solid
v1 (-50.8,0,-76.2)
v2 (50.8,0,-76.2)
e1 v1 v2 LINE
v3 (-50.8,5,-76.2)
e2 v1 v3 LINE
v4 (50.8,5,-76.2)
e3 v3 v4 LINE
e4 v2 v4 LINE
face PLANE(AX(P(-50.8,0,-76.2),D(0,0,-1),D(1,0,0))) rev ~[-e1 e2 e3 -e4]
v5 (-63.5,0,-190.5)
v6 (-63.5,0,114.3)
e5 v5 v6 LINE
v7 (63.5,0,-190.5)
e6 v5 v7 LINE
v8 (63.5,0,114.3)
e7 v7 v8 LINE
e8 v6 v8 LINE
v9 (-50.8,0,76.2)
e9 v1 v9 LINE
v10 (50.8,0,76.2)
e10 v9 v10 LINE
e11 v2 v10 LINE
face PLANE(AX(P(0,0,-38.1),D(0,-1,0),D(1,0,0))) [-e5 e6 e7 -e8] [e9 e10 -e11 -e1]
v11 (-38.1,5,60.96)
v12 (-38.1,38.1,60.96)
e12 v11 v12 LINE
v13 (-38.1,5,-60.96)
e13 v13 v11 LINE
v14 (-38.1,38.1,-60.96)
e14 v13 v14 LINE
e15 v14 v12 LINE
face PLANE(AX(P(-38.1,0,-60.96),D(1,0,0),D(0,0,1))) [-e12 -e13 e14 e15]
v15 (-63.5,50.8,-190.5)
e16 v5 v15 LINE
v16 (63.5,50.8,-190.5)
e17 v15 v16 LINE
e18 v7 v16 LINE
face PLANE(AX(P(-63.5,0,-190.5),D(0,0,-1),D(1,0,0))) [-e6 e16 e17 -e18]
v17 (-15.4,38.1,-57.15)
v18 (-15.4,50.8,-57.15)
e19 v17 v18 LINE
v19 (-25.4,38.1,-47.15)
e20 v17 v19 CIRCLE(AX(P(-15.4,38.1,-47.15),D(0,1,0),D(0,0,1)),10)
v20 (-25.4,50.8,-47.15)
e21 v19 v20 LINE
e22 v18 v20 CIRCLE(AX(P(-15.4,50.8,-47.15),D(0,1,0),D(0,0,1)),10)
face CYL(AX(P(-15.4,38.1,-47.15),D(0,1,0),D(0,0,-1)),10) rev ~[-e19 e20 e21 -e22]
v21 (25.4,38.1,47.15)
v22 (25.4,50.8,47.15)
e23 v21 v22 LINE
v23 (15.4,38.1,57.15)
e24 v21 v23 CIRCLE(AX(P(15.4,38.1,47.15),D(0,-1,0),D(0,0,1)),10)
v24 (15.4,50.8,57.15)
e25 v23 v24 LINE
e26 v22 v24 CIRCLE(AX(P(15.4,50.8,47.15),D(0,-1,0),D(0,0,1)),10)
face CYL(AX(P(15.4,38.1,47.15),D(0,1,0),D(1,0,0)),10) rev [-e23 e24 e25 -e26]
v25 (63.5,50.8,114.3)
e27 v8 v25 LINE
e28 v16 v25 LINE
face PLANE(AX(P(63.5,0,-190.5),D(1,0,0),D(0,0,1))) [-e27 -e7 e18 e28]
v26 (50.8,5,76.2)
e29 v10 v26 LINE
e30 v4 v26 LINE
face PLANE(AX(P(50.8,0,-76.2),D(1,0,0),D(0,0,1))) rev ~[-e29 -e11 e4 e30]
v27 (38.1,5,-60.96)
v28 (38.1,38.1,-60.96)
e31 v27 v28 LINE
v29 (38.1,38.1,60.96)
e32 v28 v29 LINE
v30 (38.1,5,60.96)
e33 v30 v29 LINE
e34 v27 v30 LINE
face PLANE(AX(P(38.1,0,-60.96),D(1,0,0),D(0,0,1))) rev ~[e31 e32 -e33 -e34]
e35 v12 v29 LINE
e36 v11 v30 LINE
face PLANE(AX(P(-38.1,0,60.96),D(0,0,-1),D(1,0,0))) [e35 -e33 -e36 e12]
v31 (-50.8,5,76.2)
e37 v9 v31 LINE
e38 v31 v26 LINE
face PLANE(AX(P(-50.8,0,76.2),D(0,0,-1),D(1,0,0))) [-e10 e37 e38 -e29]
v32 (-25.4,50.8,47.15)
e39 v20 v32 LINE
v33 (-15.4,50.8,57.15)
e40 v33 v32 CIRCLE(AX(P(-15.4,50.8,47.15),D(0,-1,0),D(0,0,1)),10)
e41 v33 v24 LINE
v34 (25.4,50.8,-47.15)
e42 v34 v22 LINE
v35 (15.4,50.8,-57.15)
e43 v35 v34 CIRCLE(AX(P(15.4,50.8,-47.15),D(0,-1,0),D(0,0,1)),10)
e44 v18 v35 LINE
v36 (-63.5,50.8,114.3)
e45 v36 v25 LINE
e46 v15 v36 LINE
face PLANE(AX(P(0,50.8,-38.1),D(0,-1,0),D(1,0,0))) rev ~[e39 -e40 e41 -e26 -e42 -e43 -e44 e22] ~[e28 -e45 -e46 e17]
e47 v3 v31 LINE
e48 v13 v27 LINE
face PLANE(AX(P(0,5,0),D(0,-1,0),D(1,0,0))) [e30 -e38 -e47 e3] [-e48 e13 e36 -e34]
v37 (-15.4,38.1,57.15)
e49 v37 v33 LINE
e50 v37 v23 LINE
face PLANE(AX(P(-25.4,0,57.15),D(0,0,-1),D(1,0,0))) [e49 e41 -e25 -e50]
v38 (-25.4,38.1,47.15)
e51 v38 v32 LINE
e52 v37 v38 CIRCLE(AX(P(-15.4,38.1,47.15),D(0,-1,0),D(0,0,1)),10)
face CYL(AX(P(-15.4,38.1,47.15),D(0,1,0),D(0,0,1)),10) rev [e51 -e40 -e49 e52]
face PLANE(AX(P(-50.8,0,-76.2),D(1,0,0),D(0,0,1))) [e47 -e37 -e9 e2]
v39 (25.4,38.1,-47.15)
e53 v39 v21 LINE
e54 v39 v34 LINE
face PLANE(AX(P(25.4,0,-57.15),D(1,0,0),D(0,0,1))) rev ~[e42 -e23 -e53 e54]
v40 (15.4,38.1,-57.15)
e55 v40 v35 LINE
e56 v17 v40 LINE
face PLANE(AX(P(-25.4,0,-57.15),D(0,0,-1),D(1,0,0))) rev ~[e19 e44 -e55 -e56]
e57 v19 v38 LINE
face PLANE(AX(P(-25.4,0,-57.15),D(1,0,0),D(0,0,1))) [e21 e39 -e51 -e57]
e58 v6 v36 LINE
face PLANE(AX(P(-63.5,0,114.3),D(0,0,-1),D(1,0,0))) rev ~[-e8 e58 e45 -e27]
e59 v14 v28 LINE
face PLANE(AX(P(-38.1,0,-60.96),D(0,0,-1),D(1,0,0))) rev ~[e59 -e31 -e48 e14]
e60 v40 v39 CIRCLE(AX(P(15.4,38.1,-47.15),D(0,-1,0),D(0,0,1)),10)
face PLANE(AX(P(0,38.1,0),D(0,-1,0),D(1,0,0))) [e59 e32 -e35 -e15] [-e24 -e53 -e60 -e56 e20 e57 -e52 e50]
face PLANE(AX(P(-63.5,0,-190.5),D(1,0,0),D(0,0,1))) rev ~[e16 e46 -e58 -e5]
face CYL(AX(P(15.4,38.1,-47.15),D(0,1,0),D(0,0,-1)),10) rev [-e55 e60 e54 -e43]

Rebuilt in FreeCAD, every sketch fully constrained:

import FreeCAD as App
import Part
import Sketcher

V = App.Vector
Q = App.Units.Quantity


def edges_at(feature, points):
    """Names of the edges that pass closest to the given points."""
    edges = feature.Shape.Edges
    near = lambda p: min(range(len(edges)), key=lambda i: edges[i].distToShape(Part.Vertex(*p))[0])
    return sorted({f"Edge{near(p) + 1}" for p in points})

doc = App.newDocument("Part")
params = doc.addObject("Spreadsheet::Sheet", "Params")
for row, (alias, value) in enumerate([
    ("sketch1_width", "5 in"),
    ("sketch1_width2", "2 in"),
    ("sketch1_height", "12 in"),
    ("sketch1_height2", "4.5 in"),
    ("pad1_length", "2 in"),
    ("sketch2_width", "4 in"),
    ("sketch2_width2", "3 in"),
    ("sketch2_height", "6 in"),
    ("sketch2_height2", "4.8 in"),
    ("pocket1_length", "5 mm"),
    ("sketch3_width", "3 in"),
    ("sketch3_width2", "2 in"),
    ("sketch3_height", "4.8 in"),
    ("sketch3_height2", "4.5 in"),
    ("pocket2_length", "1.5 in"),
    ("fillet_radius", "10 mm"),
], start=1):
    params.set(f"A{row}", alias)
    params.set(f"B{row}", "=" + value)
    params.setAlias(f"B{row}", alias)

body = doc.addObject("PartDesign::Body", "Body")

# Sketch on XZ plane
sketch1 = body.newObject("Sketcher::SketchObject", "Sketch")
sketch1.AttachmentSupport = (doc.getObject("XZ_Plane"), [""])
sketch1.MapMode = "FlatFace"
sketch1.addGeometry(Part.LineSegment(V(-64, 114, 0), V(-64, -190, 0)), False)
sketch1.addGeometry(Part.LineSegment(V(-64, -190, 0), V(64, -190, 0)), False)
sketch1.addGeometry(Part.LineSegment(V(64, -190, 0), V(64, 114, 0)), False)
sketch1.addGeometry(Part.LineSegment(V(64, 114, 0), V(-64, 114, 0)), False)
sketch1.addGeometry(Part.LineSegment(V(25, -57, 0), V(-25, -57, 0)), False)
sketch1.addGeometry(Part.LineSegment(V(-25, -57, 0), V(-25, 57, 0)), False)
sketch1.addGeometry(Part.LineSegment(V(-25, 57, 0), V(25, 57, 0)), False)
sketch1.addGeometry(Part.LineSegment(V(25, 57, 0), V(25, -57, 0)), False)
sketch1.addConstraint(Sketcher.Constraint("Coincident", 0, 2, 1, 1))
sketch1.addConstraint(Sketcher.Constraint("Coincident", 1, 2, 2, 1))
sketch1.addConstraint(Sketcher.Constraint("Coincident", 2, 2, 3, 1))
sketch1.addConstraint(Sketcher.Constraint("Coincident", 3, 2, 0, 1))
sketch1.addConstraint(Sketcher.Constraint("Coincident", 4, 2, 5, 1))
sketch1.addConstraint(Sketcher.Constraint("Coincident", 5, 2, 6, 1))
sketch1.addConstraint(Sketcher.Constraint("Coincident", 6, 2, 7, 1))
sketch1.addConstraint(Sketcher.Constraint("Coincident", 7, 2, 4, 1))
sketch1.addConstraint(Sketcher.Constraint("Vertical", 0))
sketch1.addConstraint(Sketcher.Constraint("Horizontal", 1))
sketch1.addConstraint(Sketcher.Constraint("Vertical", 2))
sketch1.addConstraint(Sketcher.Constraint("Horizontal", 3))
sketch1.addConstraint(Sketcher.Constraint("Horizontal", 4))
sketch1.addConstraint(Sketcher.Constraint("Vertical", 5))
sketch1.addConstraint(Sketcher.Constraint("Horizontal", 6))
sketch1.addConstraint(Sketcher.Constraint("Vertical", 7))
sketch1.addConstraint(Sketcher.Constraint("Symmetric", 4, 2, 6, 2, -1, 1))
sketch1.addConstraint(Sketcher.Constraint("DistanceX", 1, 1, 1, 2, Q("5 in")))
sketch1.addConstraint(Sketcher.Constraint("DistanceX", 4, 2, 4, 1, Q("2 in")))
sketch1.addConstraint(Sketcher.Constraint("DistanceY", 0, 2, 0, 1, Q("12 in")))
sketch1.addConstraint(Sketcher.Constraint("DistanceY", 5, 1, 5, 2, Q("4.5 in")))
sketch1.addConstraint(Sketcher.Constraint("DistanceX", 0, 2, -1, 1, Q("2.5 in")))
sketch1.addConstraint(Sketcher.Constraint("DistanceY", 0, 2, -1, 1, Q("7.5 in")))
sketch1.setExpression("Constraints[17]", "Params.sketch1_width")
sketch1.setExpression("Constraints[18]", "Params.sketch1_width2")
sketch1.setExpression("Constraints[19]", "Params.sketch1_height")
sketch1.setExpression("Constraints[20]", "Params.sketch1_height2")
pad1 = body.newObject("PartDesign::Pad", "Pad")
pad1.Profile = sketch1
pad1.setExpression("Length", "Params.pad1_length")
pad1.Reversed = True

# Sketch on XZ plane
sketch2 = body.newObject("Sketcher::SketchObject", "Sketch001")
sketch2.AttachmentSupport = (doc.getObject("XZ_Plane"), [""])
sketch2.MapMode = "FlatFace"
sketch2.addGeometry(Part.LineSegment(V(-51, 76, 0), V(-51, -76, 0)), False)
sketch2.addGeometry(Part.LineSegment(V(-51, -76, 0), V(51, -76, 0)), False)
sketch2.addGeometry(Part.LineSegment(V(51, -76, 0), V(51, 76, 0)), False)
sketch2.addGeometry(Part.LineSegment(V(51, 76, 0), V(-51, 76, 0)), False)
sketch2.addGeometry(Part.LineSegment(V(38, -61, 0), V(-38, -61, 0)), False)
sketch2.addGeometry(Part.LineSegment(V(-38, -61, 0), V(-38, 61, 0)), False)
sketch2.addGeometry(Part.LineSegment(V(-38, 61, 0), V(38, 61, 0)), False)
sketch2.addGeometry(Part.LineSegment(V(38, 61, 0), V(38, -61, 0)), False)
sketch2.addConstraint(Sketcher.Constraint("Coincident", 0, 2, 1, 1))
sketch2.addConstraint(Sketcher.Constraint("Coincident", 1, 2, 2, 1))
sketch2.addConstraint(Sketcher.Constraint("Coincident", 2, 2, 3, 1))
sketch2.addConstraint(Sketcher.Constraint("Coincident", 3, 2, 0, 1))
sketch2.addConstraint(Sketcher.Constraint("Coincident", 4, 2, 5, 1))
sketch2.addConstraint(Sketcher.Constraint("Coincident", 5, 2, 6, 1))
sketch2.addConstraint(Sketcher.Constraint("Coincident", 6, 2, 7, 1))
sketch2.addConstraint(Sketcher.Constraint("Coincident", 7, 2, 4, 1))
sketch2.addConstraint(Sketcher.Constraint("Vertical", 0))
sketch2.addConstraint(Sketcher.Constraint("Horizontal", 1))
sketch2.addConstraint(Sketcher.Constraint("Vertical", 2))
sketch2.addConstraint(Sketcher.Constraint("Horizontal", 3))
sketch2.addConstraint(Sketcher.Constraint("Horizontal", 4))
sketch2.addConstraint(Sketcher.Constraint("Vertical", 5))
sketch2.addConstraint(Sketcher.Constraint("Horizontal", 6))
sketch2.addConstraint(Sketcher.Constraint("Vertical", 7))
sketch2.addConstraint(Sketcher.Constraint("Symmetric", 0, 2, 2, 2, -1, 1))
sketch2.addConstraint(Sketcher.Constraint("Symmetric", 4, 2, 6, 2, -1, 1))
sketch2.addConstraint(Sketcher.Constraint("DistanceX", 1, 1, 1, 2, Q("4 in")))
sketch2.addConstraint(Sketcher.Constraint("DistanceX", 4, 2, 4, 1, Q("3 in")))
sketch2.addConstraint(Sketcher.Constraint("DistanceY", 0, 2, 0, 1, Q("6 in")))
sketch2.addConstraint(Sketcher.Constraint("DistanceY", 5, 1, 5, 2, Q("4.8 in")))
sketch2.setExpression("Constraints[18]", "Params.sketch2_width")
sketch2.setExpression("Constraints[19]", "Params.sketch2_width2")
sketch2.setExpression("Constraints[20]", "Params.sketch2_height")
sketch2.setExpression("Constraints[21]", "Params.sketch2_height2")
pocket1 = body.newObject("PartDesign::Pocket", "Pocket")
pocket1.Profile = sketch2
pocket1.setExpression("Length", "Params.pocket1_length")

# Sketch on XZ plane
sketch3 = body.newObject("Sketcher::SketchObject", "Sketch002")
sketch3.AttachmentSupport = (doc.getObject("XZ_Plane"), [""])
sketch3.MapMode = "FlatFace"
sketch3.addGeometry(Part.LineSegment(V(-38, 61, 0), V(-38, -61, 0)), False)
sketch3.addGeometry(Part.LineSegment(V(-38, -61, 0), V(38, -61, 0)), False)
sketch3.addGeometry(Part.LineSegment(V(38, -61, 0), V(38, 61, 0)), False)
sketch3.addGeometry(Part.LineSegment(V(38, 61, 0), V(-38, 61, 0)), False)
sketch3.addGeometry(Part.LineSegment(V(25, -57, 0), V(-25, -57, 0)), False)
sketch3.addGeometry(Part.LineSegment(V(-25, -57, 0), V(-25, 57, 0)), False)
sketch3.addGeometry(Part.LineSegment(V(-25, 57, 0), V(25, 57, 0)), False)
sketch3.addGeometry(Part.LineSegment(V(25, 57, 0), V(25, -57, 0)), False)
sketch3.addConstraint(Sketcher.Constraint("Coincident", 0, 2, 1, 1))
sketch3.addConstraint(Sketcher.Constraint("Coincident", 1, 2, 2, 1))
sketch3.addConstraint(Sketcher.Constraint("Coincident", 2, 2, 3, 1))
sketch3.addConstraint(Sketcher.Constraint("Coincident", 3, 2, 0, 1))
sketch3.addConstraint(Sketcher.Constraint("Coincident", 4, 2, 5, 1))
sketch3.addConstraint(Sketcher.Constraint("Coincident", 5, 2, 6, 1))
sketch3.addConstraint(Sketcher.Constraint("Coincident", 6, 2, 7, 1))
sketch3.addConstraint(Sketcher.Constraint("Coincident", 7, 2, 4, 1))
sketch3.addConstraint(Sketcher.Constraint("Vertical", 0))
sketch3.addConstraint(Sketcher.Constraint("Horizontal", 1))
sketch3.addConstraint(Sketcher.Constraint("Vertical", 2))
sketch3.addConstraint(Sketcher.Constraint("Horizontal", 3))
sketch3.addConstraint(Sketcher.Constraint("Horizontal", 4))
sketch3.addConstraint(Sketcher.Constraint("Vertical", 5))
sketch3.addConstraint(Sketcher.Constraint("Horizontal", 6))
sketch3.addConstraint(Sketcher.Constraint("Vertical", 7))
sketch3.addConstraint(Sketcher.Constraint("Symmetric", 0, 2, 2, 2, -1, 1))
sketch3.addConstraint(Sketcher.Constraint("Symmetric", 4, 2, 6, 2, -1, 1))
sketch3.addConstraint(Sketcher.Constraint("DistanceX", 1, 1, 1, 2, Q("3 in")))
sketch3.addConstraint(Sketcher.Constraint("DistanceX", 4, 2, 4, 1, Q("2 in")))
sketch3.addConstraint(Sketcher.Constraint("DistanceY", 0, 2, 0, 1, Q("4.8 in")))
sketch3.addConstraint(Sketcher.Constraint("DistanceY", 5, 1, 5, 2, Q("4.5 in")))
sketch3.setExpression("Constraints[18]", "Params.sketch3_width")
sketch3.setExpression("Constraints[19]", "Params.sketch3_width2")
sketch3.setExpression("Constraints[20]", "Params.sketch3_height")
sketch3.setExpression("Constraints[21]", "Params.sketch3_height2")
pocket2 = body.newObject("PartDesign::Pocket", "Pocket001")
pocket2.Profile = sketch3
pocket2.setExpression("Length", "Params.pocket2_length")
doc.recompute()

fillet = body.newObject("PartDesign::Fillet", "Fillet")
fillet.Base = (pocket2, edges_at(pocket2, [
    (-25.4, 44.45, 57.15),
    (25.4, 44.45, 57.15),
    (-25.4, 44.45, -57.15),
    (25.4, 44.45, -57.15),
]))
fillet.setExpression("Radius", "Params.fillet_radius")

doc.recompute()
